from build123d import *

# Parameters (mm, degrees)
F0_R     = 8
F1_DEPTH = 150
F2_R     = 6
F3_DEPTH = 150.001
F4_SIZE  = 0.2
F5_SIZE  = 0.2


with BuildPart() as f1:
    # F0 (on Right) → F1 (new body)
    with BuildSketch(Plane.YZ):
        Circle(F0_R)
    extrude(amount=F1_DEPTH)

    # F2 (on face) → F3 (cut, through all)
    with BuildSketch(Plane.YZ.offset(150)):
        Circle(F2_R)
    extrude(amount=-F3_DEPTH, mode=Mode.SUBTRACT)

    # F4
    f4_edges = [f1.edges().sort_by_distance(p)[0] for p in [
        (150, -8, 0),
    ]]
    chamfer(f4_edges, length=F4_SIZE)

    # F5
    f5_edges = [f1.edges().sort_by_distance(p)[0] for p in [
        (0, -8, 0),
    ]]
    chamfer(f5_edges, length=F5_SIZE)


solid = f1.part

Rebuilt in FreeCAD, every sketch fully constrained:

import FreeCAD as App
import Part
import Sketcher
from FreeCAD import Vector


def edges_at(feature, points):
    """Names of the edges that pass closest to the given points."""
    edges = feature.Shape.Edges
    near = lambda p: min(range(len(edges)), key=lambda i: edges[i].distToShape(Part.Vertex(*p))[0])
    return sorted({f"Edge{near(p) + 1}" for p in points})

doc = App.newDocument("Part")
body = doc.addObject("PartDesign::Body", "Body")

# Sketch on YZ plane
sketch1 = body.newObject("Sketcher::SketchObject", "Sketch")
sketch1.AttachmentSupport = (doc.getObject("YZ_Plane"), [""])
sketch1.MapMode = "FlatFace"
sketch1.addGeometry(Part.Circle(Vector(0, 0, 0), Vector(0, 0, 1), 8), False)
sketch1.addConstraint(Sketcher.Constraint("Coincident", 0, 3, -1, 1))
sketch1.addConstraint(Sketcher.Constraint("Diameter", 0, 16.0))
pad1 = body.newObject("PartDesign::Pad", "Pad")
pad1.Profile = sketch1
pad1.Length = 150

# Sketch on YZ plane
sketch2 = body.newObject("Sketcher::SketchObject", "Sketch001")
sketch2.AttachmentSupport = (doc.getObject("YZ_Plane"), [""])
sketch2.MapMode = "FlatFace"
sketch2.AttachmentOffset = App.Placement(Vector(0, 0, 150), App.Rotation())
sketch2.addGeometry(Part.Circle(Vector(0, 0, 0), Vector(0, 0, 1), 6), False)
sketch2.addConstraint(Sketcher.Constraint("Coincident", 0, 3, -1, 1))
sketch2.addConstraint(Sketcher.Constraint("Diameter", 0, 12.0))
pocket1 = body.newObject("PartDesign::Pocket", "Pocket")
pocket1.Profile = sketch2
pocket1.Type = "ThroughAll"
doc.recompute()

chamfer = body.newObject("PartDesign::Chamfer", "Chamfer")
chamfer.Base = (pocket1, edges_at(pocket1, [(150, -8, 0)]))
chamfer.Size = 0.2
doc.recompute()

chamfer2 = body.newObject("PartDesign::Chamfer", "Chamfer001")
chamfer2.Base = (chamfer, edges_at(chamfer, [(0, -8, 0)]))
chamfer2.Size = 0.2

doc.recompute()
